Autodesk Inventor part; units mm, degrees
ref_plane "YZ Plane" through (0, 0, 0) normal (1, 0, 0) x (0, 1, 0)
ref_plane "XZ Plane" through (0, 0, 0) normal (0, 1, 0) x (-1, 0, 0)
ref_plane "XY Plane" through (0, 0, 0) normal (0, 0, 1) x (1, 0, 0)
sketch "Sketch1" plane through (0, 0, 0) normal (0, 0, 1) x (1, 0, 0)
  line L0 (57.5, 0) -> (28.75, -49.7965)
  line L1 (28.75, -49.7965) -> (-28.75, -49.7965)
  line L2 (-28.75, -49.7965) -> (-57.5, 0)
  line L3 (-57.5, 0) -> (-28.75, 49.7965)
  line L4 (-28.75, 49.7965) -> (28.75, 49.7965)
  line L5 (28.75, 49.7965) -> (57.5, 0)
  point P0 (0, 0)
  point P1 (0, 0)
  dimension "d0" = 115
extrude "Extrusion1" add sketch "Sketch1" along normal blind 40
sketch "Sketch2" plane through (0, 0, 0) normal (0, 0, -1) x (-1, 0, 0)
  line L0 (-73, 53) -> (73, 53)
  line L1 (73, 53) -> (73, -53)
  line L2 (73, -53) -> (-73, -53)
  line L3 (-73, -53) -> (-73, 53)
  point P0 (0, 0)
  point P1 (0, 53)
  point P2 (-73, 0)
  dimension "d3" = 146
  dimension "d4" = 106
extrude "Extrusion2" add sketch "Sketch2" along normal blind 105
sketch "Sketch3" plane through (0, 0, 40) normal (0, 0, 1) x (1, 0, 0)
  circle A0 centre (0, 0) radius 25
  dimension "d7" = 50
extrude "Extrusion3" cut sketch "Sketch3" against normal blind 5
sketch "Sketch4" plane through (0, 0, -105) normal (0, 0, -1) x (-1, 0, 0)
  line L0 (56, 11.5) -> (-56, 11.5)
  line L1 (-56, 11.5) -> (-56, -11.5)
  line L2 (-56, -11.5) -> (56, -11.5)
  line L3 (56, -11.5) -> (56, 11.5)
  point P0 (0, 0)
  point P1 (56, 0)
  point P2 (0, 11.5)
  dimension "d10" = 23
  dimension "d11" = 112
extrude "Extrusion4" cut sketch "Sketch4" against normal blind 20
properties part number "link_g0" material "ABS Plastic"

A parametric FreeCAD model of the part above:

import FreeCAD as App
import Part
import Sketcher
Q = App.Units.Quantity


def add_polygon(sketch, points):
    """Adds a closed chain of lines whose ends are joined by coincident constraints."""
    first, n = sketch.GeometryCount, len(points)
    for a, b in zip(points, points[1:] + points[:1]):
        sketch.addGeometry(Part.LineSegment(App.Vector(*a, 0), App.Vector(*b, 0)), False)
    for i in range(n):
        sketch.addConstraint(Sketcher.Constraint("Coincident", first + i, 2, first + (i + 1) % n, 1))

doc = App.newDocument("Part")
body = doc.addObject("PartDesign::Body", "Body")

sketch1 = doc.addObject("Sketcher::SketchObject", "Sketch")
body.addObject(sketch1)
sketch1.AttachmentSupport = (doc.XY_Plane, [""])
sketch1.MapMode = "FlatFace"
add_polygon(sketch1, [(29, -50), (58, 0), (29, 50), (-29, 50), (-58, 0), (-29, -50)])
sketch1.addConstraint(Sketcher.Constraint("Horizontal", 2))
sketch1.addConstraint(Sketcher.Constraint("Horizontal", 5))
sketch1.addConstraint(Sketcher.Constraint("Symmetric", 0, 2, 3, 2, -1, 1))
sketch1.addConstraint(Sketcher.Constraint("Symmetric", 1, 2, 4, 2, -1, 1))
sketch1.addConstraint(Sketcher.Constraint("PointOnObject", 0, 2, -1))
sketch1.addConstraint(Sketcher.Constraint("Parallel", 0, 3))
sketch1.addConstraint(Sketcher.Constraint("Vertical", 2, 2, 4, 2))
sketch1.addConstraint(Sketcher.Constraint("DistanceX", 3, 2, 0, 2, 115.0))
sketch1.addConstraint(Sketcher.Constraint("Angle", 0, Q("60 deg")))
sketch1.addConstraint(Sketcher.Constraint("DistanceX", 2, 2, 2, 1, 57.5))
pad1 = doc.addObject("PartDesign::Pad", "Pad")
body.addObject(pad1)
pad1.Profile = sketch1
pad1.Length = 40

sketch2 = doc.addObject("Sketcher::SketchObject", "Sketch001")
body.addObject(sketch2)
sketch2.AttachmentSupport = (doc.XY_Plane, [""])
sketch2.MapMode = "FlatFace"
add_polygon(sketch2, [(-73, 53), (73, 53), (73, -53), (-73, -53)])
sketch2.addConstraint(Sketcher.Constraint("Horizontal", 0))
sketch2.addConstraint(Sketcher.Constraint("Vertical", 1))
sketch2.addConstraint(Sketcher.Constraint("Horizontal", 2))
sketch2.addConstraint(Sketcher.Constraint("Vertical", 3))
sketch2.addConstraint(Sketcher.Constraint("Symmetric", 0, 2, 2, 2, -1, 1))
sketch2.addConstraint(Sketcher.Constraint("DistanceX", 0, 1, 0, 2, 146.0))
sketch2.addConstraint(Sketcher.Constraint("DistanceY", 1, 2, 1, 1, 106.0))
pad2 = doc.addObject("PartDesign::Pad", "Pad001")
body.addObject(pad2)
pad2.Profile = sketch2
pad2.Length = 105
pad2.Reversed = True

sketch3 = doc.addObject("Sketcher::SketchObject", "Sketch002")
body.addObject(sketch3)
sketch3.AttachmentSupport = (doc.XY_Plane, [""])
sketch3.MapMode = "FlatFace"
sketch3.AttachmentOffset = App.Placement(App.Vector(0, 0, 40), App.Rotation())
sketch3.addGeometry(Part.Circle(App.Vector(0, 0, 0), App.Vector(0, 0, 1), 25), False)
sketch3.addConstraint(Sketcher.Constraint("Coincident", 0, 3, -1, 1))
sketch3.addConstraint(Sketcher.Constraint("Diameter", 0, 50.0))
pocket1 = doc.addObject("PartDesign::Pocket", "Pocket")
body.addObject(pocket1)
pocket1.Profile = sketch3
pocket1.Length = 5

sketch4 = doc.addObject("Sketcher::SketchObject", "Sketch003")
body.addObject(sketch4)
sketch4.AttachmentSupport = (doc.XY_Plane, [""])
sketch4.MapMode = "FlatFace"
sketch4.AttachmentOffset = App.Placement(App.Vector(0, 0, -105), App.Rotation())
add_polygon(sketch4, [(-56, -12), (-56, 12), (56, 12), (56, -12)])
sketch4.addConstraint(Sketcher.Constraint("Vertical", 0))
sketch4.addConstraint(Sketcher.Constraint("Horizontal", 1))
sketch4.addConstraint(Sketcher.Constraint("Vertical", 2))
sketch4.addConstraint(Sketcher.Constraint("Horizontal", 3))
sketch4.addConstraint(Sketcher.Constraint("Symmetric", 0, 2, 2, 2, -1, 1))
sketch4.addConstraint(Sketcher.Constraint("DistanceX", 1, 1, 1, 2, 112.0))
sketch4.addConstraint(Sketcher.Constraint("DistanceY", 0, 1, 0, 2, 23.0))
pocket2 = doc.addObject("PartDesign::Pocket", "Pocket001")
body.addObject(pocket2)
pocket2.Profile = sketch4
pocket2.Length = 20
pocket2.Reversed = True

doc.recompute()
